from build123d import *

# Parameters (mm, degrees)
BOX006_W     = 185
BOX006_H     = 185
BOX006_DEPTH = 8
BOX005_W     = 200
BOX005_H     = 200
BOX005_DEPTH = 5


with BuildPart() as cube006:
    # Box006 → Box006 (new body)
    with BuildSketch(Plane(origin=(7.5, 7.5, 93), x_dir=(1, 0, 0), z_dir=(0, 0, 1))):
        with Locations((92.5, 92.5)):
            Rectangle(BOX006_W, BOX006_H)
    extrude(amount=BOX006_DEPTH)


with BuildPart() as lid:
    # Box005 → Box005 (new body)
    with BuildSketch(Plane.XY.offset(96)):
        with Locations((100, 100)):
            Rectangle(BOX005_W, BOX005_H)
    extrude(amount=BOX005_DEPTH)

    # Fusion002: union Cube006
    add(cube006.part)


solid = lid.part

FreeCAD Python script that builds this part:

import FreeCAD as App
import Part
import Sketcher


def add_polygon(sketch, points):
    """Adds a closed chain of lines whose ends are joined by coincident constraints."""
    first, n = sketch.GeometryCount, len(points)
    for a, b in zip(points, points[1:] + points[:1]):
        sketch.addGeometry(Part.LineSegment(App.Vector(*a, 0), App.Vector(*b, 0)), False)
    for i in range(n):
        sketch.addConstraint(Sketcher.Constraint("Coincident", first + i, 2, first + (i + 1) % n, 1))

doc = App.newDocument("Part")
body = doc.addObject("PartDesign::Body", "Body")

sketch1 = doc.addObject("Sketcher::SketchObject", "Sketch")
body.addObject(sketch1)
sketch1.AttachmentSupport = (doc.XY_Plane, [""])
sketch1.MapMode = "FlatFace"
sketch1.AttachmentOffset = App.Placement(App.Vector(0, 0, 93), App.Rotation())
add_polygon(sketch1, [(7.5, 192.5), (7.5, 7.5), (192.5, 7.5), (192.5, 192.5)])
sketch1.addConstraint(Sketcher.Constraint("Vertical", 0))
sketch1.addConstraint(Sketcher.Constraint("Horizontal", 1))
sketch1.addConstraint(Sketcher.Constraint("Vertical", 2))
sketch1.addConstraint(Sketcher.Constraint("Horizontal", 3))
sketch1.addConstraint(Sketcher.Constraint("Equal", 3, 0))
sketch1.addConstraint(Sketcher.Constraint("DistanceX", 1, 1, 1, 2, 185.0))
sketch1.addConstraint(Sketcher.Constraint("DistanceX", -1, 1, 0, 2, 7.5))
sketch1.addConstraint(Sketcher.Constraint("DistanceY", -1, 1, 0, 2, 7.5))
pad1 = doc.addObject("PartDesign::Pad", "Pad")
body.addObject(pad1)
pad1.Profile = sketch1
pad1.Length = 8
body2 = doc.addObject("PartDesign::Body", "Body001")

sketch2 = doc.addObject("Sketcher::SketchObject", "Sketch001")
body2.addObject(sketch2)
sketch2.AttachmentSupport = (doc.getObject("XY_Plane001"), [""])
sketch2.MapMode = "FlatFace"
sketch2.AttachmentOffset = App.Placement(App.Vector(0, 0, 96), App.Rotation())
add_polygon(sketch2, [(0, 200), (0, 0), (200, 0), (200, 200)])
sketch2.addConstraint(Sketcher.Constraint("Vertical", 0))
sketch2.addConstraint(Sketcher.Constraint("Horizontal", 1))
sketch2.addConstraint(Sketcher.Constraint("Vertical", 2))
sketch2.addConstraint(Sketcher.Constraint("Horizontal", 3))
sketch2.addConstraint(Sketcher.Constraint("Coincident", 0, 2, -1, 1))
sketch2.addConstraint(Sketcher.Constraint("Equal", 3, 0))
sketch2.addConstraint(Sketcher.Constraint("DistanceX", 1, 1, 1, 2, 200.0))
pad2 = doc.addObject("PartDesign::Pad", "Pad001")
body2.addObject(pad2)
pad2.Profile = sketch2
pad2.Length = 5
doc.recompute()

boolean = doc.addObject("PartDesign::Boolean", "Boolean")
body2.addObject(boolean)
boolean.Type = "Fuse"
boolean.addObjects([body])

doc.recompute()
